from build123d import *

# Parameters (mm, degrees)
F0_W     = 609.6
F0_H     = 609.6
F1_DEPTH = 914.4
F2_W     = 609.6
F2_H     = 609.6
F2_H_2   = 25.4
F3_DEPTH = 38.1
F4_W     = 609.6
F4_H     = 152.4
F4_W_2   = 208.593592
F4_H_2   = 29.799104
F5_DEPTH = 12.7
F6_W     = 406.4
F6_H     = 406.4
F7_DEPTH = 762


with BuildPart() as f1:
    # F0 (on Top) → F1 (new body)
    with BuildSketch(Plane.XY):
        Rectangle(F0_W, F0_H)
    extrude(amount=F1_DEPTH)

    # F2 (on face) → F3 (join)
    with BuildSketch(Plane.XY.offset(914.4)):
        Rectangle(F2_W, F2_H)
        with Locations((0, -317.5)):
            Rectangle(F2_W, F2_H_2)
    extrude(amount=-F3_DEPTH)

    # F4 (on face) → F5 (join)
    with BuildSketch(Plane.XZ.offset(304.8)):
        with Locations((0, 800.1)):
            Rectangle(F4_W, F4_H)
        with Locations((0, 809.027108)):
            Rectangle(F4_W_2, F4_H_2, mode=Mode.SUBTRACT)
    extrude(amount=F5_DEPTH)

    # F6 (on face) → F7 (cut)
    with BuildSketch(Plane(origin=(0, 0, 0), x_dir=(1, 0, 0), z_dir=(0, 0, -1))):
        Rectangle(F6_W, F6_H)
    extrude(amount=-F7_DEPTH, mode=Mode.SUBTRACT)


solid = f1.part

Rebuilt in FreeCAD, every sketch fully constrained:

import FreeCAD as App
import Part
import Sketcher
Q = App.Units.Quantity


def add_polygon(sketch, points):
    """Adds a closed chain of lines whose ends are joined by coincident constraints."""
    first, n = sketch.GeometryCount, len(points)
    for a, b in zip(points, points[1:] + points[:1]):
        sketch.addGeometry(Part.LineSegment(App.Vector(*a, 0), App.Vector(*b, 0)), False)
    for i in range(n):
        sketch.addConstraint(Sketcher.Constraint("Coincident", first + i, 2, first + (i + 1) % n, 1))

doc = App.newDocument("Part")
body = doc.addObject("PartDesign::Body", "Body")

# Sketch on XY plane
sketch1 = body.newObject("Sketcher::SketchObject", "Sketch")
sketch1.AttachmentSupport = (doc.getObject("XY_Plane"), [""])
sketch1.MapMode = "FlatFace"
add_polygon(sketch1, [(-305, 305), (-305, -305), (305, -305), (305, 305)])  # lines 0-3
sketch1.addConstraint(Sketcher.Constraint("Vertical", 0))
sketch1.addConstraint(Sketcher.Constraint("Horizontal", 1))
sketch1.addConstraint(Sketcher.Constraint("Vertical", 2))
sketch1.addConstraint(Sketcher.Constraint("Horizontal", 3))
sketch1.addConstraint(Sketcher.Constraint("Symmetric", 0, 2, 2, 2, -1, 1))
sketch1.addConstraint(Sketcher.Constraint("Equal", 3, 0))
sketch1.addConstraint(Sketcher.Constraint("DistanceX", 1, 1, 1, 2, Q("24 in")))
pad1 = body.newObject("PartDesign::Pad", "Pad")
pad1.Profile = sketch1
pad1.Length = Q("36 in")

# Sketch on XY plane
sketch2 = body.newObject("Sketcher::SketchObject", "Sketch001")
sketch2.AttachmentSupport = (doc.getObject("XY_Plane"), [""])
sketch2.MapMode = "FlatFace"
sketch2.AttachmentOffset = App.Placement(App.Vector(0, 0, 36 * 25.4), App.Rotation())
add_polygon(sketch2, [(-305, 305), (-305, -330), (305, -330), (305, 305)])  # lines 0-3
sketch2.addConstraint(Sketcher.Constraint("Vertical", 0))
sketch2.addConstraint(Sketcher.Constraint("Horizontal", 1))
sketch2.addConstraint(Sketcher.Constraint("Vertical", 2))
sketch2.addConstraint(Sketcher.Constraint("Horizontal", 3))
sketch2.addConstraint(Sketcher.Constraint("DistanceX", 1, 1, 1, 2, Q("24 in")))
sketch2.addConstraint(Sketcher.Constraint("DistanceY", 0, 2, 0, 1, Q("25 in")))
sketch2.addConstraint(Sketcher.Constraint("DistanceX", 0, 2, -1, 1, Q("12 in")))
sketch2.addConstraint(Sketcher.Constraint("DistanceY", 0, 2, -1, 1, Q("13 in")))
pad2 = body.newObject("PartDesign::Pad", "Pad001")
pad2.Profile = sketch2
pad2.Length = Q("1.5 in")
pad2.Reversed = True

# Sketch on XZ plane
sketch3 = body.newObject("Sketcher::SketchObject", "Sketch002")
sketch3.AttachmentSupport = (doc.getObject("XZ_Plane"), [""])
sketch3.MapMode = "FlatFace"
sketch3.AttachmentOffset = App.Placement(App.Vector(0, 0, 12 * 25.4), App.Rotation())
add_polygon(sketch3, [(-305, 876), (-305, 724), (305, 724), (305, 876)])  # lines 0-3
add_polygon(sketch3, [(104, 794), (-104, 794), (-104, 824), (104, 824)])  # lines 4-7
sketch3.addConstraint(Sketcher.Constraint("Vertical", 0))
sketch3.addConstraint(Sketcher.Constraint("Horizontal", 1))
sketch3.addConstraint(Sketcher.Constraint("Vertical", 2))
sketch3.addConstraint(Sketcher.Constraint("Horizontal", 3))
sketch3.addConstraint(Sketcher.Constraint("Horizontal", 4))
sketch3.addConstraint(Sketcher.Constraint("Vertical", 5))
sketch3.addConstraint(Sketcher.Constraint("Horizontal", 6))
sketch3.addConstraint(Sketcher.Constraint("Vertical", 7))
sketch3.addConstraint(Sketcher.Constraint("DistanceX", 1, 1, 1, 2, Q("24 in")))
sketch3.addConstraint(Sketcher.Constraint("DistanceY", 0, 2, 0, 1, Q("6 in")))
sketch3.addConstraint(Sketcher.Constraint("DistanceX", 0, 2, -1, 1, Q("12 in")))
sketch3.addConstraint(Sketcher.Constraint("DistanceY", -1, 1, 0, 2, Q("28.5 in")))
sketch3.addConstraint(Sketcher.Constraint("DistanceX", 4, 2, 4, 1, 208.593592))
sketch3.addConstraint(Sketcher.Constraint("DistanceY", 5, 1, 5, 2, 29.799104))
sketch3.addConstraint(Sketcher.Constraint("DistanceY", -1, 1, 5, 2, 823.92666))
sketch3.addConstraint(Sketcher.Constraint("DistanceX", 4, 2, -1, 1, 104.296796))
pad3 = body.newObject("PartDesign::Pad", "Pad002")
pad3.Profile = sketch3
pad3.Length = Q("0.5 in")

# Sketch on XY plane
sketch4 = body.newObject("Sketcher::SketchObject", "Sketch003")
sketch4.AttachmentSupport = (doc.getObject("XY_Plane"), [""])
sketch4.MapMode = "FlatFace"
add_polygon(sketch4, [(-203, -203), (-203, 203), (203, 203), (203, -203)])  # lines 0-3
sketch4.addConstraint(Sketcher.Constraint("Vertical", 0))
sketch4.addConstraint(Sketcher.Constraint("Horizontal", 1))
sketch4.addConstraint(Sketcher.Constraint("Vertical", 2))
sketch4.addConstraint(Sketcher.Constraint("Horizontal", 3))
sketch4.addConstraint(Sketcher.Constraint("Symmetric", 0, 2, 2, 2, -1, 1))
sketch4.addConstraint(Sketcher.Constraint("Equal", 3, 0))
sketch4.addConstraint(Sketcher.Constraint("DistanceX", 1, 1, 1, 2, Q("16 in")))
pocket1 = body.newObject("PartDesign::Pocket", "Pocket")
pocket1.Profile = sketch4
pocket1.Length = Q("30 in")
pocket1.Reversed = True

doc.recompute()
